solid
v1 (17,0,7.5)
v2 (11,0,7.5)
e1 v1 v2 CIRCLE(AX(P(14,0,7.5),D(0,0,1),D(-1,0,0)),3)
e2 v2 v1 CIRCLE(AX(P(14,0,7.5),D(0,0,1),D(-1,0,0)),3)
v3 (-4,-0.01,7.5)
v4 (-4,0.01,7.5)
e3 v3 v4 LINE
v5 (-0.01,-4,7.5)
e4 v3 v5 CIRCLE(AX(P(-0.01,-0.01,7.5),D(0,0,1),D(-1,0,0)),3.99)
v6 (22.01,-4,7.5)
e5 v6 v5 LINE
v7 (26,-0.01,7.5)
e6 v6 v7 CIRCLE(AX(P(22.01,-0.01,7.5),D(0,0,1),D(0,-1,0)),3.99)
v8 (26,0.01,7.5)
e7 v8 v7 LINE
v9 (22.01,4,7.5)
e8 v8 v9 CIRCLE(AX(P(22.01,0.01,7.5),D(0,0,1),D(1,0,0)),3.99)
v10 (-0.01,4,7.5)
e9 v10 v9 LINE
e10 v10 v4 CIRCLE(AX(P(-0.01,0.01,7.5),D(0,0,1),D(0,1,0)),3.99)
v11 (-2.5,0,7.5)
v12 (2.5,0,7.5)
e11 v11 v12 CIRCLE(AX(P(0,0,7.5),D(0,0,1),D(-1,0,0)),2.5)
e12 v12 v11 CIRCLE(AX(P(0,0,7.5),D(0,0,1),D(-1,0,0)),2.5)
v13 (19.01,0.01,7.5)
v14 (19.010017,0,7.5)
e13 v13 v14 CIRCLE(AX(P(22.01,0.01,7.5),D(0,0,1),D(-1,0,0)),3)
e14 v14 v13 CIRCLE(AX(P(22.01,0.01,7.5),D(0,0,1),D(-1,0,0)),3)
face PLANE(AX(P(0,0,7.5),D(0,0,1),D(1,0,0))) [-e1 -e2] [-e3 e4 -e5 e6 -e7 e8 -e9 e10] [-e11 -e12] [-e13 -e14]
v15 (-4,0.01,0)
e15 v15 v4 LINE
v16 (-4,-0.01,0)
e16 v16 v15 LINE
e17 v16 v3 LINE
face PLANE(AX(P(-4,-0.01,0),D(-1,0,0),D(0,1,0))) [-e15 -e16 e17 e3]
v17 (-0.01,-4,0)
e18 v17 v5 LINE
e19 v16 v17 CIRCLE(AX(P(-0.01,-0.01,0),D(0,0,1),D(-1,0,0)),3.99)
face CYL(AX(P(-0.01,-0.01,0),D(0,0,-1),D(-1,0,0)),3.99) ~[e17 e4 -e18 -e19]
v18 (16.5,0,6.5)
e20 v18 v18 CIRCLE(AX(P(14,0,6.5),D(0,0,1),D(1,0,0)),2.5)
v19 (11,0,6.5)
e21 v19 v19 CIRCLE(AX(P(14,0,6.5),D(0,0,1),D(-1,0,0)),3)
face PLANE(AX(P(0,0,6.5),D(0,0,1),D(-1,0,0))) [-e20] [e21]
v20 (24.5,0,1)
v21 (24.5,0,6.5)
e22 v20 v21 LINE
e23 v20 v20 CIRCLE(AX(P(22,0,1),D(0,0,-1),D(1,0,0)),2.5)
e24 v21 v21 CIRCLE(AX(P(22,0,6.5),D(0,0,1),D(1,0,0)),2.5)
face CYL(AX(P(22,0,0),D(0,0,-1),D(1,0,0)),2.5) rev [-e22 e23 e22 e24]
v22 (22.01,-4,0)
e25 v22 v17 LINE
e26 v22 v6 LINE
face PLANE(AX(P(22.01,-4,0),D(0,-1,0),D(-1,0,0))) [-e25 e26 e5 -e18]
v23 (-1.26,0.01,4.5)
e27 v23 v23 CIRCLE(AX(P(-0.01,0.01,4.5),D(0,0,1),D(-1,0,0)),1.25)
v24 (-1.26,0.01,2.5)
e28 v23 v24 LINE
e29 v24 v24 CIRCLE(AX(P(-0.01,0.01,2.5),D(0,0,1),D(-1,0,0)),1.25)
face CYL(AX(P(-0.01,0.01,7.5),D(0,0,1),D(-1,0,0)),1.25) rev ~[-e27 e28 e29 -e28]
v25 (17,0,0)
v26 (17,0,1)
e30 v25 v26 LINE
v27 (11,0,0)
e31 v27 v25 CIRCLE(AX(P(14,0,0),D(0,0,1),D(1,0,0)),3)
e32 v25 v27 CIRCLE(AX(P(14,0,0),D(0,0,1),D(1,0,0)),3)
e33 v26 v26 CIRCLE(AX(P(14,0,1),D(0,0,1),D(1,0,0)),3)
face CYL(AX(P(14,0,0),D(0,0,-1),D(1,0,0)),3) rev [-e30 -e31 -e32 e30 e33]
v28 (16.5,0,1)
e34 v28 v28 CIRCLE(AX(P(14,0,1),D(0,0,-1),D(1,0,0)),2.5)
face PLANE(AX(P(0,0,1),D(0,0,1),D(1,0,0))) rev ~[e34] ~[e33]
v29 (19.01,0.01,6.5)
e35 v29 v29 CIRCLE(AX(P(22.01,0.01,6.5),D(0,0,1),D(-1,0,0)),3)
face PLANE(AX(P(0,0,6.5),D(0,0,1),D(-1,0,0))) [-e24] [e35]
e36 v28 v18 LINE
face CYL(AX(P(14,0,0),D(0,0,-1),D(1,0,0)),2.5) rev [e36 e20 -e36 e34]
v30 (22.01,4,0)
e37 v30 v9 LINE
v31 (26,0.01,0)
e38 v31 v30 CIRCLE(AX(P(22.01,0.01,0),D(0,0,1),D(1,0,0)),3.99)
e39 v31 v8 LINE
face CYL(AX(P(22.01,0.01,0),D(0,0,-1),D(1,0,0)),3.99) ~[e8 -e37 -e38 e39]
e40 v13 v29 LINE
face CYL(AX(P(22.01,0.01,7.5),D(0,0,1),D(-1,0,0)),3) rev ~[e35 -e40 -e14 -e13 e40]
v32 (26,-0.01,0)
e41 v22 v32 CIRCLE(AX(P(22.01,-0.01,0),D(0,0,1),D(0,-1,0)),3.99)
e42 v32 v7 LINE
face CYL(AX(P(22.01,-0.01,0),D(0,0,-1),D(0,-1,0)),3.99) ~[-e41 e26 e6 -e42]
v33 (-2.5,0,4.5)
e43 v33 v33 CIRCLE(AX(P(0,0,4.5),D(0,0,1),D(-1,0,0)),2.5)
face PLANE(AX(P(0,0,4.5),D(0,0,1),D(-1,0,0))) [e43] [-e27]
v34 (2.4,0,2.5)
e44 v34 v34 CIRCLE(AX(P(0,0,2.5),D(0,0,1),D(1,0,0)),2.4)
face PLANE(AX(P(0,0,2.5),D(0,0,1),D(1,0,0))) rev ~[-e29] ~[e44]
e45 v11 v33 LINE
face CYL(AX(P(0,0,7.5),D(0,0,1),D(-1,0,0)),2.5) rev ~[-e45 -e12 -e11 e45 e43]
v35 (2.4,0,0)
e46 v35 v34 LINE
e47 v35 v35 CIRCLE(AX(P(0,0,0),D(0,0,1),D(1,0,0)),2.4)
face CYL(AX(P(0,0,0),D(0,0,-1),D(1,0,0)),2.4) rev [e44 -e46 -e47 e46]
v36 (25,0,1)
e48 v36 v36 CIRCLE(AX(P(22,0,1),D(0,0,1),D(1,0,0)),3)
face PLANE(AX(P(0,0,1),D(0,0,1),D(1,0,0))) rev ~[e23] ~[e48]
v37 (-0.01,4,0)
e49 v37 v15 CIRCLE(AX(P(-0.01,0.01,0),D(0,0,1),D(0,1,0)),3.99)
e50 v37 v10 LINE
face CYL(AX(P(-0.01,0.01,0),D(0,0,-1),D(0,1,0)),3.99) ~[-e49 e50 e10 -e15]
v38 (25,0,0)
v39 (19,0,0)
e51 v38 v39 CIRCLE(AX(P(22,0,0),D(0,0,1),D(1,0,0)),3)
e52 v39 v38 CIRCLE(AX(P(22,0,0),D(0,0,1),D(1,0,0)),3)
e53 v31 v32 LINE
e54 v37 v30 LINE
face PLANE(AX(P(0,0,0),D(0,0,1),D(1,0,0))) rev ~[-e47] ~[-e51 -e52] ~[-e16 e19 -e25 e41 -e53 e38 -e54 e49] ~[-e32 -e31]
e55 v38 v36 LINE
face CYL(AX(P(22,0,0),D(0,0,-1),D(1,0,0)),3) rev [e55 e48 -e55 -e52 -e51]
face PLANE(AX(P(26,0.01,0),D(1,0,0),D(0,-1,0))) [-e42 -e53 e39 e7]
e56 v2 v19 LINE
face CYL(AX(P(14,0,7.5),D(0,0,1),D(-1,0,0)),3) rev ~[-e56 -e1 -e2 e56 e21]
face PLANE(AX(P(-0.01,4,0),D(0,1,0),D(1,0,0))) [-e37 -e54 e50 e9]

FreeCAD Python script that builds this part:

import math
import FreeCAD as App
import Part
import Sketcher

V = App.Vector

doc = App.newDocument("Part")
params = doc.addObject("Spreadsheet::Sheet", "Params")
for row, (alias, value) in enumerate([
    ("sketch1_diameter", "5 mm"),
    ("sketch1_radius", "3.99 mm"),
    ("pad1_length", "7.5 mm"),
    ("sketch2_diameter", "4.8 mm"),
    ("pocket1_length", "2.5 mm"),
    ("sketch3_diameter", "2.5 mm"),
    ("pocket2_length", "100 mm"),
    ("sketch4_diameter", "5 mm"),
    ("pocket3_length", "3 mm"),
    ("sketch5_diameter", "6 mm"),
    ("pocket4_length", "1 mm"),
    ("sketch6_diameter", "6 mm"),
    ("pocket5_length", "1 mm"),
    ("sketch7_diameter", "6 mm"),
    ("sketch7_diameter2", "5 mm"),
    ("pocket6_length", "1 mm"),
    ("sketch8_diameter", "6 mm"),
    ("sketch8_diameter2", "5 mm"),
    ("pocket7_length", "1 mm"),
], start=1):
    params.set(f"A{row}", alias)
    params.set(f"B{row}", "=" + value)
    params.setAlias(f"B{row}", alias)

body = doc.addObject("PartDesign::Body", "Body")

# Sketch on XY plane
sketch1 = doc.addObject("Sketcher::SketchObject", "Sketch")
body.addObject(sketch1)
sketch1.AttachmentSupport = (doc.XY_Plane, [""])
sketch1.MapMode = "FlatFace"
sketch1.addGeometry(Part.LineSegment(V(-0.01, -4, 0), V(22.01, -4, 0)), False)
sketch1.addGeometry(Part.ArcOfCircle(Part.Circle(V(22.01, -0.01, 0), V(0, 0, 1), 3.99), math.radians(-90), math.radians(0)), False)
sketch1.addGeometry(Part.LineSegment(V(26, -0.01, 0), V(26, 0.01, 0)), False)
sketch1.addGeometry(Part.ArcOfCircle(Part.Circle(V(22.01, 0.01, 0), V(0, 0, 1), 3.99), math.radians(0), math.radians(90)), False)
sketch1.addGeometry(Part.LineSegment(V(22.01, 4, 0), V(-0.01, 4, 0)), False)
sketch1.addGeometry(Part.ArcOfCircle(Part.Circle(V(-0.01, 0.01, 0), V(0, 0, 1), 3.99), math.radians(90), math.radians(180)), False)
sketch1.addGeometry(Part.LineSegment(V(-4, 0.01, 0), V(-4, -0.01, 0)), False)
sketch1.addGeometry(Part.ArcOfCircle(Part.Circle(V(-0.01, -0.01, 0), V(0, 0, 1), 3.99), math.radians(180), math.radians(270)), False)
sketch1.addGeometry(Part.ArcOfCircle(Part.Circle(V(14, 0, 0), V(0, 0, 1), 2.5), math.radians(0), math.radians(180)), False)
sketch1.addGeometry(Part.ArcOfCircle(Part.Circle(V(14, 0, 0), V(0, 0, 1), 2.5), math.radians(180), math.radians(360)), False)
sketch1.addGeometry(Part.Circle(V(22, 0, 0), V(0, 0, 1), 2.5), False)
sketch1.addConstraint(Sketcher.Constraint("Tangent", 0, 2, 1, 1))
sketch1.addConstraint(Sketcher.Constraint("Tangent", 1, 2, 2, 1))
sketch1.addConstraint(Sketcher.Constraint("Tangent", 2, 2, 3, 1))
sketch1.addConstraint(Sketcher.Constraint("Tangent", 3, 2, 4, 1))
sketch1.addConstraint(Sketcher.Constraint("Tangent", 4, 2, 5, 1))
sketch1.addConstraint(Sketcher.Constraint("Tangent", 5, 2, 6, 1))
sketch1.addConstraint(Sketcher.Constraint("Tangent", 6, 2, 7, 1))
sketch1.addConstraint(Sketcher.Constraint("Tangent", 7, 2, 0, 1))
sketch1.addConstraint(Sketcher.Constraint("Tangent", 8, 1, 9, 2))
sketch1.addConstraint(Sketcher.Constraint("Coincident", 9, 1, 8, 2))
sketch1.addConstraint(Sketcher.Constraint("Horizontal", 0))
sketch1.addConstraint(Sketcher.Constraint("Vertical", 2))
sketch1.addConstraint(Sketcher.Constraint("Horizontal", 4))
sketch1.addConstraint(Sketcher.Constraint("Vertical", 6))
sketch1.addConstraint(Sketcher.Constraint("Equal", 1, 3))
sketch1.addConstraint(Sketcher.Constraint("Equal", 3, 5))
sketch1.addConstraint(Sketcher.Constraint("Equal", 5, 7))
sketch1.addConstraint(Sketcher.Constraint("Equal", 9, 10))
sketch1.addConstraint(Sketcher.Constraint("PointOnObject", 8, 3, -1))
sketch1.addConstraint(Sketcher.Constraint("PointOnObject", 10, 3, -1))
sketch1.addConstraint(Sketcher.Constraint("PointOnObject", 8, 1, -1))
sketch1.addConstraint(Sketcher.Constraint("PointOnObject", 9, 1, -1))
sketch1.addConstraint(Sketcher.Constraint("Diameter", 10, 5.0))
sketch1.addConstraint(Sketcher.Constraint("Radius", 1, 3.99))
sketch1.addConstraint(Sketcher.Constraint("DistanceX", -1, 1, 10, 3, 22.0))
sketch1.addConstraint(Sketcher.Constraint("DistanceX", 8, 3, 10, 3, 8.0))
sketch1.addConstraint(Sketcher.Constraint("DistanceY", 7, 2, 4, 2, 8.0))
sketch1.addConstraint(Sketcher.Constraint("DistanceY", 0, 2, -1, 1, 4.0))
sketch1.addConstraint(Sketcher.Constraint("DistanceX", -1, 1, 1, 2, 26.0))
sketch1.addConstraint(Sketcher.Constraint("DistanceX", 5, 2, -1, 1, 4.0))
sketch1.setExpression("Constraints[22]", "Params.sketch1_diameter")
sketch1.setExpression("Constraints[23]", "Params.sketch1_radius")
pad1 = doc.addObject("PartDesign::Pad", "Pad")
body.addObject(pad1)
pad1.Profile = sketch1
pad1.setExpression("Length", "Params.pad1_length")

# Sketch on XY plane
sketch2 = doc.addObject("Sketcher::SketchObject", "Sketch001")
body.addObject(sketch2)
sketch2.AttachmentSupport = (doc.XY_Plane, [""])
sketch2.MapMode = "FlatFace"
sketch2.addGeometry(Part.Circle(V(0, 0, 0), V(0, 0, 1), 2.4), False)
sketch2.addConstraint(Sketcher.Constraint("Coincident", 0, 3, -1, 1))
sketch2.addConstraint(Sketcher.Constraint("Diameter", 0, 4.8))
sketch2.setExpression("Constraints[1]", "Params.sketch2_diameter")
pocket1 = doc.addObject("PartDesign::Pocket", "Pocket")
body.addObject(pocket1)
pocket1.Profile = sketch2
pocket1.setExpression("Length", "Params.pocket1_length")
pocket1.Reversed = True

# Sketch on XY plane
sketch3 = doc.addObject("Sketcher::SketchObject", "Sketch002")
body.addObject(sketch3)
sketch3.AttachmentSupport = (doc.XY_Plane, [""])
sketch3.MapMode = "FlatFace"
sketch3.AttachmentOffset = App.Placement(V(0, 0, 7.5), App.Rotation())
sketch3.addGeometry(Part.Circle(V(0, 0, 0), V(0, 0, 1), 1.2), False)
sketch3.addConstraint(Sketcher.Constraint("Diameter", 0, 2.5))
sketch3.addConstraint(Sketcher.Constraint("DistanceX", 0, 3, -1, 1, 0.01))
sketch3.addConstraint(Sketcher.Constraint("DistanceY", -1, 1, 0, 3, 0.01))
sketch3.setExpression("Constraints[0]", "Params.sketch3_diameter")
pocket2 = doc.addObject("PartDesign::Pocket", "Pocket001")
body.addObject(pocket2)
pocket2.Profile = sketch3
pocket2.setExpression("Length", "Params.pocket2_length")

# Sketch on XY plane
sketch4 = doc.addObject("Sketcher::SketchObject", "Sketch003")
body.addObject(sketch4)
sketch4.AttachmentSupport = (doc.XY_Plane, [""])
sketch4.MapMode = "FlatFace"
sketch4.AttachmentOffset = App.Placement(V(0, 0, 7.5), App.Rotation())
sketch4.addGeometry(Part.Circle(V(0, 0, 0), V(0, 0, 1), 2.5), False)
sketch4.addConstraint(Sketcher.Constraint("Coincident", 0, 3, -1, 1))
sketch4.addConstraint(Sketcher.Constraint("Diameter", 0, 5.0))
sketch4.setExpression("Constraints[1]", "Params.sketch4_diameter")
pocket3 = doc.addObject("PartDesign::Pocket", "Pocket002")
body.addObject(pocket3)
pocket3.Profile = sketch4
pocket3.setExpression("Length", "Params.pocket3_length")

# Sketch on XY plane
sketch5 = doc.addObject("Sketcher::SketchObject", "Sketch004")
body.addObject(sketch5)
sketch5.AttachmentSupport = (doc.XY_Plane, [""])
sketch5.MapMode = "FlatFace"
sketch5.addGeometry(Part.Circle(V(14, 0, 0), V(0, 0, 1), 3), False)
sketch5.addConstraint(Sketcher.Constraint("PointOnObject", 0, 3, -1))
sketch5.addConstraint(Sketcher.Constraint("Diameter", 0, 6.0))
sketch5.addConstraint(Sketcher.Constraint("DistanceX", -1, 1, 0, 3, 14.0))
sketch5.setExpression("Constraints[1]", "Params.sketch5_diameter")
pocket4 = doc.addObject("PartDesign::Pocket", "Pocket003")
body.addObject(pocket4)
pocket4.Profile = sketch5
pocket4.setExpression("Length", "Params.pocket4_length")
pocket4.Reversed = True

# Sketch on XY plane
sketch6 = doc.addObject("Sketcher::SketchObject", "Sketch005")
body.addObject(sketch6)
sketch6.AttachmentSupport = (doc.XY_Plane, [""])
sketch6.MapMode = "FlatFace"
sketch6.addGeometry(Part.Circle(V(22, 0, 0), V(0, 0, 1), 3), False)
sketch6.addConstraint(Sketcher.Constraint("PointOnObject", 0, 3, -1))
sketch6.addConstraint(Sketcher.Constraint("Diameter", 0, 6.0))
sketch6.addConstraint(Sketcher.Constraint("DistanceX", -1, 1, 0, 3, 22.0))
sketch6.setExpression("Constraints[1]", "Params.sketch6_diameter")
pocket5 = doc.addObject("PartDesign::Pocket", "Pocket004")
body.addObject(pocket5)
pocket5.Profile = sketch6
pocket5.setExpression("Length", "Params.pocket5_length")
pocket5.Reversed = True

# Sketch on XY plane
sketch7 = doc.addObject("Sketcher::SketchObject", "Sketch006")
body.addObject(sketch7)
sketch7.AttachmentSupport = (doc.XY_Plane, [""])
sketch7.MapMode = "FlatFace"
sketch7.AttachmentOffset = App.Placement(V(0, 0, 7.5), App.Rotation())
sketch7.addGeometry(Part.Circle(V(22, 0, 0), V(0, 0, 1), 3), False)
sketch7.addGeometry(Part.Circle(V(22, 0, 0), V(0, 0, 1), 2.5), False)
sketch7.addConstraint(Sketcher.Constraint("PointOnObject", 1, 3, -1))
sketch7.addConstraint(Sketcher.Constraint("Diameter", 0, 6.0))
sketch7.addConstraint(Sketcher.Constraint("Diameter", 1, 5.0))
sketch7.addConstraint(Sketcher.Constraint("DistanceX", -1, 1, 1, 3, 22.0))
sketch7.addConstraint(Sketcher.Constraint("DistanceX", -1, 1, 0, 3, 22.01))
sketch7.addConstraint(Sketcher.Constraint("DistanceY", -1, 1, 0, 3, 0.01))
sketch7.setExpression("Constraints[1]", "Params.sketch7_diameter")
sketch7.setExpression("Constraints[2]", "Params.sketch7_diameter2")
pocket6 = doc.addObject("PartDesign::Pocket", "Pocket005")
body.addObject(pocket6)
pocket6.Profile = sketch7
pocket6.setExpression("Length", "Params.pocket6_length")

# Sketch on XY plane
sketch8 = doc.addObject("Sketcher::SketchObject", "Sketch007")
body.addObject(sketch8)
sketch8.AttachmentSupport = (doc.XY_Plane, [""])
sketch8.MapMode = "FlatFace"
sketch8.AttachmentOffset = App.Placement(V(0, 0, 7.5), App.Rotation())
sketch8.addGeometry(Part.Circle(V(14, 0, 0), V(0, 0, 1), 3), False)
sketch8.addGeometry(Part.Circle(V(14, 0, 0), V(0, 0, 1), 2.5), False)
sketch8.addConstraint(Sketcher.Constraint("Coincident", 1, 3, 0, 3))
sketch8.addConstraint(Sketcher.Constraint("PointOnObject", 0, 3, -1))
sketch8.addConstraint(Sketcher.Constraint("Diameter", 0, 6.0))
sketch8.addConstraint(Sketcher.Constraint("Diameter", 1, 5.0))
sketch8.addConstraint(Sketcher.Constraint("DistanceX", -1, 1, 0, 3, 14.0))
sketch8.setExpression("Constraints[2]", "Params.sketch8_diameter")
sketch8.setExpression("Constraints[3]", "Params.sketch8_diameter2")
pocket7 = doc.addObject("PartDesign::Pocket", "Pocket006")
body.addObject(pocket7)
pocket7.Profile = sketch8
pocket7.setExpression("Length", "Params.pocket7_length")

doc.recompute()
